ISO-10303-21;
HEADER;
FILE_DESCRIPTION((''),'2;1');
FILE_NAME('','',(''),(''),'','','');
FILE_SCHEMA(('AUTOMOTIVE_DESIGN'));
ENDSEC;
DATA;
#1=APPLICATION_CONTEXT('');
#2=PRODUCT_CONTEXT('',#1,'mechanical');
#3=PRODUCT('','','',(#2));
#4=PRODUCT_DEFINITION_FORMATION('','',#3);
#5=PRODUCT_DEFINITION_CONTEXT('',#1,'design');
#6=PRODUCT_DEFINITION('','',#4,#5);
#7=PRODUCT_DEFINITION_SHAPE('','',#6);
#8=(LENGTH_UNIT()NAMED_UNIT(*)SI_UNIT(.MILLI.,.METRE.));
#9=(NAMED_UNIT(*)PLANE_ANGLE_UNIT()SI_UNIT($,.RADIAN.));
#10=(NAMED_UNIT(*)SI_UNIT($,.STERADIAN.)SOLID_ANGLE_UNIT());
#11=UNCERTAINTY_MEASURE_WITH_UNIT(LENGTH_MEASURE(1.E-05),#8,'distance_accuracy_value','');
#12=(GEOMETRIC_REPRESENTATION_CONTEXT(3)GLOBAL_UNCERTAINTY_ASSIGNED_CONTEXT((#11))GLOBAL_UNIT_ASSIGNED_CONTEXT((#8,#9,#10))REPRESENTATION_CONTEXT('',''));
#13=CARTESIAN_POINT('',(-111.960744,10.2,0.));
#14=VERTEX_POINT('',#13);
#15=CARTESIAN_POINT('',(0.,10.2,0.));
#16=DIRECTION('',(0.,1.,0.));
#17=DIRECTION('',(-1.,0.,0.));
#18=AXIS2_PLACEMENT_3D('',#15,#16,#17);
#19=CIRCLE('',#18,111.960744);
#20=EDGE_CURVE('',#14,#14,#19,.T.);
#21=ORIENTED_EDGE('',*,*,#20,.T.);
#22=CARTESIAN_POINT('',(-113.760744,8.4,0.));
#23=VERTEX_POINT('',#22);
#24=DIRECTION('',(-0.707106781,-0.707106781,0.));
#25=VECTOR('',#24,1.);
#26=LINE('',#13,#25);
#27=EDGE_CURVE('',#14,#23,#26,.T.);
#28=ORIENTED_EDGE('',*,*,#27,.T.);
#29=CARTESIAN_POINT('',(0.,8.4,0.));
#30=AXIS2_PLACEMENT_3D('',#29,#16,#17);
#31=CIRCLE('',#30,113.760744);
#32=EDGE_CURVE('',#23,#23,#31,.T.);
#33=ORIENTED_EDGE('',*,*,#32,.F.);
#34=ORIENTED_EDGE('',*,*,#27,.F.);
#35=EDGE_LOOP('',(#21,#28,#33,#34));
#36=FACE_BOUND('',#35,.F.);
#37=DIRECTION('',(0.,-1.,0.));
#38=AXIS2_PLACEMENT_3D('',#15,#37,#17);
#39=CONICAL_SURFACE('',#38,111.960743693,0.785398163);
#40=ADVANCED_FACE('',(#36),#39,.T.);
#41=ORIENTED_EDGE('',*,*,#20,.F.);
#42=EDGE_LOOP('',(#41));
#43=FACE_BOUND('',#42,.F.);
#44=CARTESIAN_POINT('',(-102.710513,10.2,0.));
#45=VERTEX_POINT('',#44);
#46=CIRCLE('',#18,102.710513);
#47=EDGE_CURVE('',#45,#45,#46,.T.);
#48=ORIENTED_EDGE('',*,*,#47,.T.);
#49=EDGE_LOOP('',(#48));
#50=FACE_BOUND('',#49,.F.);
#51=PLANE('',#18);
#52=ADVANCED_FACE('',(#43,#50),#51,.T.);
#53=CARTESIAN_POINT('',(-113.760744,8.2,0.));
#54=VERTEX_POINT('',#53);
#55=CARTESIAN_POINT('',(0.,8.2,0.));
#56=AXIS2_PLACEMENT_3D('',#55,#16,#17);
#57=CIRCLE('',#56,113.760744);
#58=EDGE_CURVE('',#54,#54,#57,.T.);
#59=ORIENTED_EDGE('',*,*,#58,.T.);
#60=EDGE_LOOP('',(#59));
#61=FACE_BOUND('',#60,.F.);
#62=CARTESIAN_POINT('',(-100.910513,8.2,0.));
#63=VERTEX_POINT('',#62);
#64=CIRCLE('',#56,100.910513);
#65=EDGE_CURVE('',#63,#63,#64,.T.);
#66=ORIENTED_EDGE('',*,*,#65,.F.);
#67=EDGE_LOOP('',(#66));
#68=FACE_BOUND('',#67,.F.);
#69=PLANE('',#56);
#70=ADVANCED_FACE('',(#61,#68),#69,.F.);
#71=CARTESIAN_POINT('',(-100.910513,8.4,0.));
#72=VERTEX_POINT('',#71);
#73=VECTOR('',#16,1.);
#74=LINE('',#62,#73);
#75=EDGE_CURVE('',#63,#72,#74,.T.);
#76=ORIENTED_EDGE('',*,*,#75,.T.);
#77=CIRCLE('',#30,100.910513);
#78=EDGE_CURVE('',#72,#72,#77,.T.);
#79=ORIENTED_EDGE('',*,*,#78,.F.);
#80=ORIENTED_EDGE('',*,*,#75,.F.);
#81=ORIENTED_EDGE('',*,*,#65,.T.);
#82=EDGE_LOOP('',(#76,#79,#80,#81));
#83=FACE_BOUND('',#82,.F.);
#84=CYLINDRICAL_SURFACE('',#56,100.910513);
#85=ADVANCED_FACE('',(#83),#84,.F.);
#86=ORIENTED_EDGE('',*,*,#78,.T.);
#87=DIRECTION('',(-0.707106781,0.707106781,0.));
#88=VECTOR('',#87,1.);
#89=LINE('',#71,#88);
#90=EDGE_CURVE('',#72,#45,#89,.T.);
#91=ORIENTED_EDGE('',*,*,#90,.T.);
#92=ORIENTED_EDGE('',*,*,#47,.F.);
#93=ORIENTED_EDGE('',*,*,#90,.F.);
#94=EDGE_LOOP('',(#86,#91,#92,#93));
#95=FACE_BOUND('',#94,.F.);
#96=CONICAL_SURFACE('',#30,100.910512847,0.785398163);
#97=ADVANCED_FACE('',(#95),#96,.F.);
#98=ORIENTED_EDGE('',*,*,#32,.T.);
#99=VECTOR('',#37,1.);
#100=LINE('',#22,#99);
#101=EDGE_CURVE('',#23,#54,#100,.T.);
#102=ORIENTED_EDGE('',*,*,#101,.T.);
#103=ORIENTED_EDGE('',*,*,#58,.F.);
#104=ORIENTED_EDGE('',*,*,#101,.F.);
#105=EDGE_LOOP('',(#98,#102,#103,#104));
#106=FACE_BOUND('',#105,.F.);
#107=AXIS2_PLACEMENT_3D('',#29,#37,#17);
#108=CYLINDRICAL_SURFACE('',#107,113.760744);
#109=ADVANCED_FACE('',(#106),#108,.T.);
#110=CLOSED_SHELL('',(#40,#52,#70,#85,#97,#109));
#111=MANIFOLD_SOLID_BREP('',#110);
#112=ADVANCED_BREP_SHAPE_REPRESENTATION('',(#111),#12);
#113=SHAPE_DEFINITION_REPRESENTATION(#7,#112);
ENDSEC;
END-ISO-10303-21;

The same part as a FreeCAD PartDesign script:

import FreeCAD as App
import Part
import Sketcher
from FreeCAD import Vector

doc = App.newDocument("Part")
params = doc.addObject("Spreadsheet::Sheet", "Params")
for row, (alias, value) in enumerate([
    ("sketch1_height", "0.2 mm"),
    ("revolution_angle", "360 deg"),
], start=1):
    params.set(f"A{row}", alias)
    params.set(f"B{row}", "=" + value)
    params.setAlias(f"B{row}", alias)

body = doc.addObject("PartDesign::Body", "Body")

# Sketch on XY plane
sketch1 = body.newObject("Sketcher::SketchObject", "Sketch")
sketch1.AttachmentSupport = (doc.getObject("XY_Plane"), [""])
sketch1.MapMode = "FlatFace"
sketch1.addGeometry([
    Part.LineSegment(Vector(-113.760744, 8.4, 0), Vector(-113.760744, 8.2, 0)),  # 0
    Part.LineSegment(Vector(-113.760744, 8.2, 0), Vector(-100.910513, 8.2, 0)),  # 1
    Part.LineSegment(Vector(-100.910513, 8.2, 0), Vector(-100.910513, 8.4, 0)),  # 2
    Part.LineSegment(Vector(-100.910513, 8.4, 0), Vector(-102.710513, 10.2, 0)),  # 3
    Part.LineSegment(Vector(-102.710513, 10.2, 0), Vector(-111.960744, 10.2, 0)),  # 4
    Part.LineSegment(Vector(-111.960744, 10.2, 0), Vector(-113.760744, 8.4, 0)),  # 5
], False)
sketch1.addConstraint([
    Sketcher.Constraint("Coincident", 0, 2, 1, 1),
    Sketcher.Constraint("Coincident", 1, 2, 2, 1),
    Sketcher.Constraint("Coincident", 2, 2, 3, 1),
    Sketcher.Constraint("Coincident", 3, 2, 4, 1),
    Sketcher.Constraint("Coincident", 4, 2, 5, 1),
    Sketcher.Constraint("Coincident", 5, 2, 0, 1),
    Sketcher.Constraint("Vertical", 0),
    Sketcher.Constraint("Horizontal", 1),
    Sketcher.Constraint("Vertical", 2),
    Sketcher.Constraint("Horizontal", 4),
    Sketcher.Constraint("Perpendicular", 3, 5),
    Sketcher.Constraint("Horizontal", 2, 2, 5, 2),
    Sketcher.Constraint("Equal", 3, 5),
    Sketcher.Constraint("DistanceY", 0, 2, 0, 1, 0.2),
    Sketcher.Constraint("DistanceY", 1, 2, 3, 2, 2.0),
    Sketcher.Constraint("DistanceY", -1, 1, 0, 2, 8.2),
    Sketcher.Constraint("DistanceX", 1, 1, 1, 2, 12.850231),
    Sketcher.Constraint("DistanceX", 0, 2, -1, 1, 113.760744),
])
sketch1.setExpression("Constraints[13]", "Params.sketch1_height")
revolution = body.newObject("PartDesign::Revolution", "Revolution")
revolution.Profile = sketch1
revolution.ReferenceAxis = (sketch1, ["V_Axis"])
revolution.setExpression("Angle", "Params.revolution_angle")

doc.recompute()
